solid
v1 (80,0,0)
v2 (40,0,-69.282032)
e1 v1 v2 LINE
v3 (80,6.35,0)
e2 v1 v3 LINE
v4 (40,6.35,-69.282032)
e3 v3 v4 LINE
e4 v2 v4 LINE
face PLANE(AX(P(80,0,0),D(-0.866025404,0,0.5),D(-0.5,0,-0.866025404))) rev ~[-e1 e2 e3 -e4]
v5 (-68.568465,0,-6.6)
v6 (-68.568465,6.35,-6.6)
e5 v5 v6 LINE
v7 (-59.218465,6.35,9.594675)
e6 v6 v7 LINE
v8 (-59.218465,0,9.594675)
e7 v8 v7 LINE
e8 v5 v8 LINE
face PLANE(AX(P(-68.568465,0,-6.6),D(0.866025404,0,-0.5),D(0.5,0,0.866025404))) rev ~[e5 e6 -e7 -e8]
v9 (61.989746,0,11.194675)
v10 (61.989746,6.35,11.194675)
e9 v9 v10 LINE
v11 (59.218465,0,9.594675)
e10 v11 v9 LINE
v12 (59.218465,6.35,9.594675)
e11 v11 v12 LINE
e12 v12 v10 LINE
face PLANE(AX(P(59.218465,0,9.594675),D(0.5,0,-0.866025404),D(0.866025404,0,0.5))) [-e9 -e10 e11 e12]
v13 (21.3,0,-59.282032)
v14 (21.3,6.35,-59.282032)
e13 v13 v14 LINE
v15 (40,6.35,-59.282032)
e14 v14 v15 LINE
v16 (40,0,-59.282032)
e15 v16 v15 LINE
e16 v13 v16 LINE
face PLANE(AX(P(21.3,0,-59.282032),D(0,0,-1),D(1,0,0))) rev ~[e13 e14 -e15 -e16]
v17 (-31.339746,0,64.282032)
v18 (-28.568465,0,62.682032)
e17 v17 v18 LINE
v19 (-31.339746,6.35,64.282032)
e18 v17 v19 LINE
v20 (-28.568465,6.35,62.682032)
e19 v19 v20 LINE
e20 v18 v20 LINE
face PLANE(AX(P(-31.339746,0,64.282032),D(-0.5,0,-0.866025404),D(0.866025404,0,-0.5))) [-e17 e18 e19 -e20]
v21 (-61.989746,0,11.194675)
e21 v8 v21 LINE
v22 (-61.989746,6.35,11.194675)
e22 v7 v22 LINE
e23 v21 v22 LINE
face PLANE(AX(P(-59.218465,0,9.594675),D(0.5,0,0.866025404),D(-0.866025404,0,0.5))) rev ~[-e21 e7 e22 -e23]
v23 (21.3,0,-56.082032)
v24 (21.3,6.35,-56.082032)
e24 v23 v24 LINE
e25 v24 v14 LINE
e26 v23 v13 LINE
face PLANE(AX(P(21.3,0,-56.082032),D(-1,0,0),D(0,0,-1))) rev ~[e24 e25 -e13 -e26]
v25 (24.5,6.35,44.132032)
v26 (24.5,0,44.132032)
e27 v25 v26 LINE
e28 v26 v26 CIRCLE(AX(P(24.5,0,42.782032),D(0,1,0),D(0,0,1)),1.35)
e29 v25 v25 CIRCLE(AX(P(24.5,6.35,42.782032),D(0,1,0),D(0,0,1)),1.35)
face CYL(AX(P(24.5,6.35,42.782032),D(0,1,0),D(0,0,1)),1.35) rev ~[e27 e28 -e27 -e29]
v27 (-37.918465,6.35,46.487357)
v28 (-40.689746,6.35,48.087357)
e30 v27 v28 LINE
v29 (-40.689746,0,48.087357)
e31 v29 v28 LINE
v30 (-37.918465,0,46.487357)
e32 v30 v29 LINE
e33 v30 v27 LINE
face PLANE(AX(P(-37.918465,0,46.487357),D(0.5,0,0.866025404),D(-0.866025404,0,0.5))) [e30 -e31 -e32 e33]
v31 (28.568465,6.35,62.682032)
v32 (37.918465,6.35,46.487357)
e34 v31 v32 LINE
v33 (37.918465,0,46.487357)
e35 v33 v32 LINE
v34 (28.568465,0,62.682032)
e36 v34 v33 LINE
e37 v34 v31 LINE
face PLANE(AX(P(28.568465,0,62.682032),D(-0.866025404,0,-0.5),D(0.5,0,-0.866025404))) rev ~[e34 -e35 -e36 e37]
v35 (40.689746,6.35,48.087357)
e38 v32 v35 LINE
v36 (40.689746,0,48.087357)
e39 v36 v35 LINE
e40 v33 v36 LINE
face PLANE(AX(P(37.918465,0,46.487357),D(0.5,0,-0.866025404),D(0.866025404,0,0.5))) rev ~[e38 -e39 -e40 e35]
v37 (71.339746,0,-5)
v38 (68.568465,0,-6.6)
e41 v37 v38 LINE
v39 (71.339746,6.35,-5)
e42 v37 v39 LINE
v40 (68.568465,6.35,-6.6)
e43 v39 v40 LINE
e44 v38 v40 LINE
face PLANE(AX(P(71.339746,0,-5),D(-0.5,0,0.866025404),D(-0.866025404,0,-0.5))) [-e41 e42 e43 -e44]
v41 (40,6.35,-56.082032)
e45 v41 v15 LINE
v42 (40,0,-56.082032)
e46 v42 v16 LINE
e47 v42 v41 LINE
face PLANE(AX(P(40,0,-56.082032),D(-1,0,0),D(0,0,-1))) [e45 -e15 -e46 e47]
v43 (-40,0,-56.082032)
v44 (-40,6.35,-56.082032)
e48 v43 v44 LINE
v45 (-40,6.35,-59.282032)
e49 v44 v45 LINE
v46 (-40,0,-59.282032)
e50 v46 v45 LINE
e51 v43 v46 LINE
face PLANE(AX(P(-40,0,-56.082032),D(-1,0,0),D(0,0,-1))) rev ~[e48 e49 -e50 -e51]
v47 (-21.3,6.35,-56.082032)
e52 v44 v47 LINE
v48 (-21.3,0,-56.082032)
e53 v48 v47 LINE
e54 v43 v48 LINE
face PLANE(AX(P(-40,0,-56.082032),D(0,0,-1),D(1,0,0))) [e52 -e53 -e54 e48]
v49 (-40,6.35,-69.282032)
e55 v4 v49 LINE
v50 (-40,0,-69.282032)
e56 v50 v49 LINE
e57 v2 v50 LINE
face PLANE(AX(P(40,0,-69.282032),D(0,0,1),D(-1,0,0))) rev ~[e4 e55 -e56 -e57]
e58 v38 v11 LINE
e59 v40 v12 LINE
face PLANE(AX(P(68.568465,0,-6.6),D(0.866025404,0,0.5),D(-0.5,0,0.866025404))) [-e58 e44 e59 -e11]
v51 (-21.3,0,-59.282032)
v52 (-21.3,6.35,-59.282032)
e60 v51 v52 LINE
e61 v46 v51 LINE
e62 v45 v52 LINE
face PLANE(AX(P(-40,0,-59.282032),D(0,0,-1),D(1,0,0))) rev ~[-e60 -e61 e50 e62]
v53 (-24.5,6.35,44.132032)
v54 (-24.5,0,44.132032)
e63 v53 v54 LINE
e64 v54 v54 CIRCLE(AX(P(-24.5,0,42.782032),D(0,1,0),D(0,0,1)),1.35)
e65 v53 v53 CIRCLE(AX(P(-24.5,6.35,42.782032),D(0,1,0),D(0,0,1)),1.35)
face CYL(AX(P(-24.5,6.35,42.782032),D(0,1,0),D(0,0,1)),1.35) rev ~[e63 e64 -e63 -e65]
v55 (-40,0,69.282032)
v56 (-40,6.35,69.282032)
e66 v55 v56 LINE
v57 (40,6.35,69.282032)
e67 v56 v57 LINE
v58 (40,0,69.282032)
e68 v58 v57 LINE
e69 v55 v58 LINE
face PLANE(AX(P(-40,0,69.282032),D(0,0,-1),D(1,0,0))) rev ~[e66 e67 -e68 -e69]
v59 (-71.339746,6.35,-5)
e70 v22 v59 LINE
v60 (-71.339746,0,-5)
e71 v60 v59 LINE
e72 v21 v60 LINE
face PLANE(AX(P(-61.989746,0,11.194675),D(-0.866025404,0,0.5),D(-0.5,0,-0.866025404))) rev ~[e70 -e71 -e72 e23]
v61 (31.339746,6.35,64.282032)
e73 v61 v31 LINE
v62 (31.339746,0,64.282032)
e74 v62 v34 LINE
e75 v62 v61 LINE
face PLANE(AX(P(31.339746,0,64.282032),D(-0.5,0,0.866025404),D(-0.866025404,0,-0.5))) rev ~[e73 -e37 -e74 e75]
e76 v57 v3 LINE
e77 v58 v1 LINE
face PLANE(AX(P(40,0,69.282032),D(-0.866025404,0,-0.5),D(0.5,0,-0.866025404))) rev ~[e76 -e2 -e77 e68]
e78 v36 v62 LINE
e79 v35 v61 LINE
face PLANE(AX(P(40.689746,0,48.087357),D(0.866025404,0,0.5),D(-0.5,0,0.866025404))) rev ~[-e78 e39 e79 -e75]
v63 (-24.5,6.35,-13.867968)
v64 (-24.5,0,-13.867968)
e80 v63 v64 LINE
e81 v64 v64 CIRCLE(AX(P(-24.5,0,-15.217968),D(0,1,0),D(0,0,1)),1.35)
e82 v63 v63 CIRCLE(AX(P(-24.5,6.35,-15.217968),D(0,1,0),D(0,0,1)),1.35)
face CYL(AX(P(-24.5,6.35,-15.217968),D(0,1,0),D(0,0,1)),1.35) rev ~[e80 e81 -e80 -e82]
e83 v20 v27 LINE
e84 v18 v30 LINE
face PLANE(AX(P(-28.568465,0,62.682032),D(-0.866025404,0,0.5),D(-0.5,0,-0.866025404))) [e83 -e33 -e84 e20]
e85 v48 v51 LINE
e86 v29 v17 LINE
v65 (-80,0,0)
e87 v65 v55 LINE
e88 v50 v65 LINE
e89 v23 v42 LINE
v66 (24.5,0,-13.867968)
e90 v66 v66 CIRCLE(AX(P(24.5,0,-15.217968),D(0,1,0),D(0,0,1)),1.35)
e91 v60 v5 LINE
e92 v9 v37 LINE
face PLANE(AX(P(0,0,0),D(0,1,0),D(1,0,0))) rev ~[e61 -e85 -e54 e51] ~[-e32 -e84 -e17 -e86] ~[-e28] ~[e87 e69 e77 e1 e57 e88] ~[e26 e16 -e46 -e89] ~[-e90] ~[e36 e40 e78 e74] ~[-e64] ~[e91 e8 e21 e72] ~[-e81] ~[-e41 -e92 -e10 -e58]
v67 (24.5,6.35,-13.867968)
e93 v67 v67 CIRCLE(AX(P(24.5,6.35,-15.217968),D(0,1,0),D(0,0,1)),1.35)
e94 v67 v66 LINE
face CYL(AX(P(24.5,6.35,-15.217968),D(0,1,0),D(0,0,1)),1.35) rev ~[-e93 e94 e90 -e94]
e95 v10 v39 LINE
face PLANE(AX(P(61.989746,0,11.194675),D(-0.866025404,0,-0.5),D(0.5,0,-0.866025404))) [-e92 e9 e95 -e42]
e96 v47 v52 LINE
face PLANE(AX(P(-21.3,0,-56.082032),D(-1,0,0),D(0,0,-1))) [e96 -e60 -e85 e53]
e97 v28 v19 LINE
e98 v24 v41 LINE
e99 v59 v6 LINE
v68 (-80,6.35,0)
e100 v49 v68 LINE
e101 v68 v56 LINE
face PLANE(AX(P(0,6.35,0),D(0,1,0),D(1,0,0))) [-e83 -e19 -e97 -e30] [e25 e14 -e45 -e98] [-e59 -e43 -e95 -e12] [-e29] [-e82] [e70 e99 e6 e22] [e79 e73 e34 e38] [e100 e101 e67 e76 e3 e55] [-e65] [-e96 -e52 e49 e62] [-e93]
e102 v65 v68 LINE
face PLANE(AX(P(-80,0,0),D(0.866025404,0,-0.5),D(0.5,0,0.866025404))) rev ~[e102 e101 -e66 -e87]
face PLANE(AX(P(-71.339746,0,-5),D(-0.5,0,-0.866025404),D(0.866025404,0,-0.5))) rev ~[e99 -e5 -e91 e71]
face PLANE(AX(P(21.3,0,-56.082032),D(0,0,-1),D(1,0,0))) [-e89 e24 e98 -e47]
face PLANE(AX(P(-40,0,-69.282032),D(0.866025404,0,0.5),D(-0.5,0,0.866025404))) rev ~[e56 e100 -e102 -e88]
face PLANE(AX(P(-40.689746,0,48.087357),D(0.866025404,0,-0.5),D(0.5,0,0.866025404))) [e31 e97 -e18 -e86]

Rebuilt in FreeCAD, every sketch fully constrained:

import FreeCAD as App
import Part
import Sketcher
Q = App.Units.Quantity

doc = App.newDocument("Part")
body = doc.addObject("PartDesign::Body", "Body")

sketch1 = body.newObject("Sketcher::SketchObject", "Sketch")
sketch1.AttachmentSupport = (doc.getObject("XZ_Plane"), [""])
sketch1.MapMode = "FlatFace"
sketch1.addGeometry([
    Part.LineSegment(App.Vector(40, 69.3, 0), App.Vector(80, 0, 0)),
    Part.LineSegment(App.Vector(80, 0, 0), App.Vector(40, -69.3, 0)),
    Part.LineSegment(App.Vector(40, -69.3, 0), App.Vector(-40, -69.3, 0)),
    Part.LineSegment(App.Vector(-40, -69.3, 0), App.Vector(-80, 0, 0)),
    Part.LineSegment(App.Vector(-80, 0, 0), App.Vector(-40, 69.3, 0)),
    Part.LineSegment(App.Vector(-40, 69.3, 0), App.Vector(40, 69.3, 0)),
    Part.LineSegment(App.Vector(-28.6, 62.7, 0), App.Vector(-31.3, 64.3, 0)),
    Part.LineSegment(App.Vector(-31.3, 64.3, 0), App.Vector(-40.7, 48.1, 0)),
    Part.LineSegment(App.Vector(-40.7, 48.1, 0), App.Vector(-37.9, 46.5, 0)),
    Part.LineSegment(App.Vector(-37.9, 46.5, 0), App.Vector(-28.6, 62.7, 0)),
    Part.LineSegment(App.Vector(31.3, 64.3, 0), App.Vector(28.6, 62.7, 0)),
    Part.LineSegment(App.Vector(28.6, 62.7, 0), App.Vector(37.9, 46.5, 0)),
    Part.LineSegment(App.Vector(37.9, 46.5, 0), App.Vector(40.7, 48.1, 0)),
    Part.LineSegment(App.Vector(40.7, 48.1, 0), App.Vector(31.3, 64.3, 0)),
    Part.LineSegment(App.Vector(-71.3, -5, 0), App.Vector(-68.6, -6.6, 0)),
    Part.LineSegment(App.Vector(-68.6, -6.6, 0), App.Vector(-59.2, 9.6, 0)),
    Part.LineSegment(App.Vector(-59.2, 9.6, 0), App.Vector(-62, 11.2, 0)),
    Part.LineSegment(App.Vector(-62, 11.2, 0), App.Vector(-71.3, -5, 0)),
    Part.LineSegment(App.Vector(-21.3, -56.1, 0), App.Vector(-40, -56.1, 0)),
    Part.LineSegment(App.Vector(-40, -56.1, 0), App.Vector(-40, -59.3, 0)),
    Part.LineSegment(App.Vector(-40, -59.3, 0), App.Vector(-21.3, -59.3, 0)),
    Part.LineSegment(App.Vector(-21.3, -59.3, 0), App.Vector(-21.3, -56.1, 0)),
    Part.LineSegment(App.Vector(68.6, -6.6, 0), App.Vector(71.3, -5, 0)),
    Part.LineSegment(App.Vector(71.3, -5, 0), App.Vector(62, 11.2, 0)),
    Part.LineSegment(App.Vector(62, 11.2, 0), App.Vector(59.2, 9.6, 0)),
    Part.LineSegment(App.Vector(59.2, 9.6, 0), App.Vector(68.6, -6.6, 0)),
    Part.LineSegment(App.Vector(40, -56.1, 0), App.Vector(21.3, -56.1, 0)),
    Part.LineSegment(App.Vector(21.3, -56.1, 0), App.Vector(21.3, -59.3, 0)),
    Part.LineSegment(App.Vector(21.3, -59.3, 0), App.Vector(40, -59.3, 0)),
    Part.LineSegment(App.Vector(40, -59.3, 0), App.Vector(40, -56.1, 0)),
], False)
sketch1.addConstraint([
    Sketcher.Constraint("Coincident", 0, 2, 1, 1),
    Sketcher.Constraint("Coincident", 1, 2, 2, 1),
    Sketcher.Constraint("Coincident", 2, 2, 3, 1),
    Sketcher.Constraint("Coincident", 3, 2, 4, 1),
    Sketcher.Constraint("Coincident", 4, 2, 5, 1),
    Sketcher.Constraint("Coincident", 5, 2, 0, 1),
    Sketcher.Constraint("Coincident", 6, 2, 7, 1),
    Sketcher.Constraint("Coincident", 7, 2, 8, 1),
    Sketcher.Constraint("Coincident", 8, 2, 9, 1),
    Sketcher.Constraint("Coincident", 9, 2, 6, 1),
    Sketcher.Constraint("Coincident", 10, 2, 11, 1),
    Sketcher.Constraint("Coincident", 11, 2, 12, 1),
    Sketcher.Constraint("Coincident", 12, 2, 13, 1),
    Sketcher.Constraint("Coincident", 13, 2, 10, 1),
    Sketcher.Constraint("Coincident", 14, 2, 15, 1),
    Sketcher.Constraint("Coincident", 15, 2, 16, 1),
    Sketcher.Constraint("Coincident", 16, 2, 17, 1),
    Sketcher.Constraint("Coincident", 17, 2, 14, 1),
    Sketcher.Constraint("Coincident", 18, 2, 19, 1),
    Sketcher.Constraint("Coincident", 19, 2, 20, 1),
    Sketcher.Constraint("Coincident", 20, 2, 21, 1),
    Sketcher.Constraint("Coincident", 21, 2, 18, 1),
    Sketcher.Constraint("Coincident", 22, 2, 23, 1),
    Sketcher.Constraint("Coincident", 23, 2, 24, 1),
    Sketcher.Constraint("Coincident", 24, 2, 25, 1),
    Sketcher.Constraint("Coincident", 25, 2, 22, 1),
    Sketcher.Constraint("Coincident", 26, 2, 27, 1),
    Sketcher.Constraint("Coincident", 27, 2, 28, 1),
    Sketcher.Constraint("Coincident", 28, 2, 29, 1),
    Sketcher.Constraint("Coincident", 29, 2, 26, 1),
    Sketcher.Constraint("Horizontal", 2),
    Sketcher.Constraint("Horizontal", 5),
    Sketcher.Constraint("Horizontal", 18),
    Sketcher.Constraint("Vertical", 19),
    Sketcher.Constraint("Horizontal", 20),
    Sketcher.Constraint("Vertical", 21),
    Sketcher.Constraint("Horizontal", 26),
    Sketcher.Constraint("Vertical", 27),
    Sketcher.Constraint("Horizontal", 28),
    Sketcher.Constraint("Vertical", 29),
    Sketcher.Constraint("Symmetric", 0, 2, 3, 2, -1, 1),
    Sketcher.Constraint("Symmetric", 1, 2, 4, 2, -1, 1),
    Sketcher.Constraint("Symmetric", 9, 2, 10, 2, -2),
    Sketcher.Constraint("Symmetric", 8, 2, 11, 2, -2),
    Sketcher.Constraint("Symmetric", 7, 2, 12, 2, -2),
    Sketcher.Constraint("Symmetric", 6, 2, 13, 2, -2),
    Sketcher.Constraint("Symmetric", 17, 2, 22, 2, -2),
    Sketcher.Constraint("Symmetric", 16, 2, 23, 2, -2),
    Sketcher.Constraint("Symmetric", 15, 2, 24, 2, -2),
    Sketcher.Constraint("Symmetric", 14, 2, 25, 2, -2),
    Sketcher.Constraint("Symmetric", 21, 2, 26, 2, -2),
    Sketcher.Constraint("Symmetric", 19, 2, 28, 2, -2),
    Sketcher.Constraint("PointOnObject", 0, 2, -1),
    Sketcher.Constraint("Parallel", 0, 3),
    Sketcher.Constraint("Perpendicular", 4, 6),
    Sketcher.Constraint("Perpendicular", 6, 7),
    Sketcher.Constraint("Perpendicular", 7, 8),
    Sketcher.Constraint("Perpendicular", 8, 9),
    Sketcher.Constraint("Perpendicular", 3, 10),
    Sketcher.Constraint("Perpendicular", 9, 14),
    Sketcher.Constraint("Perpendicular", 14, 15),
    Sketcher.Constraint("Perpendicular", 15, 16),
    Sketcher.Constraint("Perpendicular", 16, 17),
    Sketcher.Constraint("Vertical", 4, 2, 18, 2),
    Sketcher.Constraint("Equal", 12, 14),
    Sketcher.Constraint("Equal", 13, 15),
    Sketcher.Constraint("DistanceX", 2, 2, 2, 1, 80.0),
    Sketcher.Constraint("Angle", 0, Q("-60 deg")),
    Sketcher.Constraint("Distance", 0, 80.0),
    Sketcher.Constraint("DistanceX", 18, 2, 18, 1, 18.7),
    Sketcher.Constraint("DistanceY", 19, 2, 19, 1, 3.2),
    Sketcher.Constraint("DistanceY", 17, 2, -1, 1, 5.0),
    Sketcher.Constraint("DistanceY", 6, 2, 4, 2, 5.0),
    Sketcher.Constraint("DistanceX", 14, 2, 9, 2, 40.0),
    Sketcher.Constraint("DistanceY", 2, 2, 19, 2, 10.0),
    Sketcher.Constraint("Distance", 6, 3.2),
    Sketcher.Constraint("Distance", 7, 18.7),
    Sketcher.Constraint("DistanceX", 9, 2, 10, 2, 57.136929),
])
pad1 = body.newObject("PartDesign::Pad", "Pad")
pad1.Profile = sketch1
pad1.Length = 6.35
pad1.Reversed = True

sketch2 = body.newObject("Sketcher::SketchObject", "Sketch001")
sketch2.AttachmentSupport = (doc.getObject("XZ_Plane"), [""])
sketch2.MapMode = "FlatFace"
sketch2.AttachmentOffset = App.Placement(App.Vector(0, 0, -6.35), App.Rotation())
sketch2.addGeometry([
    Part.Circle(App.Vector(-24.5, 42.8, 0), App.Vector(0, 0, 1), 1.4),
    Part.Circle(App.Vector(24.5, 42.8, 0), App.Vector(0, 0, 1), 1.4),
    Part.Circle(App.Vector(24.5, -15.2, 0), App.Vector(0, 0, 1), 1.4),
    Part.Circle(App.Vector(-24.5, -15.2, 0), App.Vector(0, 0, 1), 1.4),
], False)
sketch2.addConstraint([
    Sketcher.Constraint("Equal", 0, 1),
    Sketcher.Constraint("Equal", 1, 2),
    Sketcher.Constraint("Equal", 2, 3),
    Sketcher.Constraint("Symmetric", 0, 3, 1, 3, -2),
    Sketcher.Constraint("Symmetric", 2, 3, 3, 3, -2),
    Sketcher.Constraint("Vertical", 1, 3, 2, 3),
    Sketcher.Constraint("Diameter", 0, 2.7),
    Sketcher.Constraint("DistanceX", 0, 3, 1, 3, 49.0),
    Sketcher.Constraint("DistanceY", 2, 3, 1, 3, 58.0),
    Sketcher.Constraint("DistanceY", -1, 1, 0, 3, 42.782032),
])
pocket1 = body.newObject("PartDesign::Pocket", "Pocket")
pocket1.Profile = sketch2
pocket1.Length = 6.35
pocket1.Reversed = True

doc.recompute()
